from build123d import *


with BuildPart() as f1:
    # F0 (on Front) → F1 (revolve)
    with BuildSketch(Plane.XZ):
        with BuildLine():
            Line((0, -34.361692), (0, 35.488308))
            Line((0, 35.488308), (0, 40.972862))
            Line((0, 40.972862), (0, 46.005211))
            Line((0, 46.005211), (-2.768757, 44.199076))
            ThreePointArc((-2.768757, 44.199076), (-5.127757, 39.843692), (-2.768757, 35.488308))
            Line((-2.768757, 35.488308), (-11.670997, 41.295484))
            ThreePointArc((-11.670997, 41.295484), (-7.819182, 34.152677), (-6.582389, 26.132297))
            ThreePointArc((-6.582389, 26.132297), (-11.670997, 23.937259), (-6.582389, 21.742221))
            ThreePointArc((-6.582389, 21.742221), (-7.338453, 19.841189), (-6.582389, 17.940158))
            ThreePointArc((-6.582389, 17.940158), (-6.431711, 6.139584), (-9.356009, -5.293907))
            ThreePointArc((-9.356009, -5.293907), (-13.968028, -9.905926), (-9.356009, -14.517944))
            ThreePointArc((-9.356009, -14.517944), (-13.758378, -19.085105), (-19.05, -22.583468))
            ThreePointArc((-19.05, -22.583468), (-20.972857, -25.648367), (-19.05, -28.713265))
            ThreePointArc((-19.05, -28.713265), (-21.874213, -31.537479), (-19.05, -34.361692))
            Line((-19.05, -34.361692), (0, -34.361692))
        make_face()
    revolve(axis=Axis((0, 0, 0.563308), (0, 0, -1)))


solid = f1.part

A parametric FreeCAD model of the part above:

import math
import FreeCAD as App
import Part
import Sketcher
from FreeCAD import Vector
Q = App.Units.Quantity

doc = App.newDocument("Part")
body = doc.addObject("PartDesign::Body", "Body")

# Sketch on XZ plane
sketch1 = body.newObject("Sketcher::SketchObject", "Sketch")
sketch1.AttachmentSupport = (doc.getObject("XZ_Plane"), [""])
sketch1.MapMode = "FlatFace"
sketch1.addGeometry([
    Part.LineSegment(Vector(0, -34.4, 0), Vector(0, 46, 0)),  # 0
    Part.LineSegment(Vector(0, 46, 0), Vector(-2.8, 44.2, 0)),  # 1
    Part.ArcOfCircle(Part.Circle(Vector(0.1, 39.8, 0), Vector(0, 0, 1), 5.2), math.radians(123), math.radians(237)),  # 2
    Part.LineSegment(Vector(-2.8, 35.5, 0), Vector(-11.7, 41.3, 0)),  # 3
    Part.ArcOfCircle(Part.Circle(Vector(-30.5, 26.6, 0), Vector(0, 0, 1), 23.9), math.radians(-1), math.radians(38)),  # 4
    Part.ArcOfCircle(Part.Circle(Vector(-8.7, 23.9, 0), Vector(0, 0, 1), 3), math.radians(47), math.radians(313)),  # 5
    Part.ArcOfCircle(Part.Circle(Vector(-4.6, 19.8, 0), Vector(0, 0, 1), 2.8), math.radians(137), math.radians(223)),  # 6
    Part.ArcOfCircle(Part.Circle(Vector(-51.1, 11.5, 0), Vector(0, 0, 1), 45), math.radians(-22), math.radians(8)),  # 7
    Part.ArcOfCircle(Part.Circle(Vector(-9.4, -9.9, 0), Vector(0, 0, 1), 4.6), math.radians(90), math.radians(270)),  # 8
    Part.ArcOfCircle(Part.Circle(Vector(-32.3, 3.2, 0), Vector(0, 0, 1), 28.9), math.radians(-63), math.radians(-38)),  # 9
    Part.ArcOfCircle(Part.Circle(Vector(-17.6, -25.6, 0), Vector(0, 0, 1), 3.4), math.radians(116), math.radians(244)),  # 10
    Part.ArcOfCircle(Part.Circle(Vector(-19, -31.5, 0), Vector(0, 0, 1), 2.8), math.radians(90), math.radians(270)),  # 11
    Part.LineSegment(Vector(-19.1, -34.4, 0), Vector(0, -34.4, 0)),  # 12
], False)
sketch1.addConstraint([
    Sketcher.Constraint("Coincident", 0, 2, 1, 1),
    Sketcher.Constraint("Tangent", 1, 2, 2, 1),
    Sketcher.Constraint("Tangent", 2, 2, 3, 1),
    Sketcher.Constraint("Coincident", 3, 2, 4, 2),
    Sketcher.Constraint("Coincident", 4, 1, 5, 1),
    Sketcher.Constraint("Coincident", 5, 2, 6, 1),
    Sketcher.Constraint("Coincident", 6, 2, 7, 2),
    Sketcher.Constraint("Coincident", 7, 1, 8, 1),
    Sketcher.Constraint("Coincident", 8, 2, 9, 2),
    Sketcher.Constraint("Coincident", 9, 1, 10, 1),
    Sketcher.Constraint("Coincident", 10, 2, 11, 1),
    Sketcher.Constraint("Tangent", 11, 2, 12, 1),
    Sketcher.Constraint("Coincident", 12, 2, 0, 1),
    Sketcher.Constraint("Vertical", 0),
    Sketcher.Constraint("Horizontal", 12),
    Sketcher.Constraint("PointOnObject", 0, 2, -2),
    Sketcher.Constraint("Vertical", 1, 2, 2, 2),
    Sketcher.Constraint("Vertical", 4, 1, 5, 2),
    Sketcher.Constraint("Vertical", 5, 2, 6, 2),
    Sketcher.Constraint("Vertical", 8, 3, 7, 1),
    Sketcher.Constraint("Vertical", 7, 1, 8, 2),
    Sketcher.Constraint("Vertical", 11, 3, 9, 1),
    Sketcher.Constraint("Vertical", 9, 1, 10, 2),
    Sketcher.Constraint("DistanceX", 12, 1, 12, 2, Q("0.75 in")),
    Sketcher.Constraint("Radius", 6, Q("2.767989 mm")),
    Sketcher.Constraint("Radius", 7, Q("44.974111 mm")),
    Sketcher.Constraint("Radius", 8, Q("4.612018 mm")),
    Sketcher.Constraint("DistanceY", 11, 2, 8, 2, Q("0.7812499 in")),
    Sketcher.Constraint("Radius", 2, Q("5.200138 mm")),
    Sketcher.Constraint("Radius", 4, Q("23.875233 mm")),
    Sketcher.Constraint("Radius", 5, Q("3.017733 mm")),
    Sketcher.Constraint("Radius", 9, Q("28.942014 mm")),
    Sketcher.Constraint("Radius", 10, Q("3.404045 mm")),
    Sketcher.Constraint("Radius", 11, Q("2.824213 mm")),
    Sketcher.Constraint("DistanceY", 6, 3, 2, 3, Q("0.7875001 in")),
    Sketcher.Constraint("DistanceX", 5, 3, 6, 3, Q("4.0828 mm")),
    Sketcher.Constraint("DistanceY", 11, 3, 7, 3, Q("43.008099 mm")),
    Sketcher.Constraint("DistanceY", 9, 3, 0, 2, Q("42.842002 mm")),
    Sketcher.Constraint("DistanceY", 6, 2, 5, 3, Q("5.997101 mm")),
    Sketcher.Constraint("DistanceY", 10, 3, 9, 1, Q("3.064899 mm")),
    Sketcher.Constraint("DistanceY", 0, 1, 0, 2, Q("80.366903 mm")),
    Sketcher.Constraint("DistanceX", -1, 1, 2, 3, Q("0.072381 mm")),
    Sketcher.Constraint("DistanceY", -1, 1, 2, 3, Q("39.843692 mm")),
    Sketcher.Constraint("DistanceX", 4, 3, -1, 1, Q("30.453849 mm")),
    Sketcher.Constraint("DistanceY", -1, 1, 4, 3, Q("26.556718 mm")),
])
revolution = body.newObject("PartDesign::Revolution", "Revolution")
revolution.Profile = sketch1
revolution.ReferenceAxis = (sketch1, ["V_Axis"])
revolution.Angle = 360

doc.recompute()
